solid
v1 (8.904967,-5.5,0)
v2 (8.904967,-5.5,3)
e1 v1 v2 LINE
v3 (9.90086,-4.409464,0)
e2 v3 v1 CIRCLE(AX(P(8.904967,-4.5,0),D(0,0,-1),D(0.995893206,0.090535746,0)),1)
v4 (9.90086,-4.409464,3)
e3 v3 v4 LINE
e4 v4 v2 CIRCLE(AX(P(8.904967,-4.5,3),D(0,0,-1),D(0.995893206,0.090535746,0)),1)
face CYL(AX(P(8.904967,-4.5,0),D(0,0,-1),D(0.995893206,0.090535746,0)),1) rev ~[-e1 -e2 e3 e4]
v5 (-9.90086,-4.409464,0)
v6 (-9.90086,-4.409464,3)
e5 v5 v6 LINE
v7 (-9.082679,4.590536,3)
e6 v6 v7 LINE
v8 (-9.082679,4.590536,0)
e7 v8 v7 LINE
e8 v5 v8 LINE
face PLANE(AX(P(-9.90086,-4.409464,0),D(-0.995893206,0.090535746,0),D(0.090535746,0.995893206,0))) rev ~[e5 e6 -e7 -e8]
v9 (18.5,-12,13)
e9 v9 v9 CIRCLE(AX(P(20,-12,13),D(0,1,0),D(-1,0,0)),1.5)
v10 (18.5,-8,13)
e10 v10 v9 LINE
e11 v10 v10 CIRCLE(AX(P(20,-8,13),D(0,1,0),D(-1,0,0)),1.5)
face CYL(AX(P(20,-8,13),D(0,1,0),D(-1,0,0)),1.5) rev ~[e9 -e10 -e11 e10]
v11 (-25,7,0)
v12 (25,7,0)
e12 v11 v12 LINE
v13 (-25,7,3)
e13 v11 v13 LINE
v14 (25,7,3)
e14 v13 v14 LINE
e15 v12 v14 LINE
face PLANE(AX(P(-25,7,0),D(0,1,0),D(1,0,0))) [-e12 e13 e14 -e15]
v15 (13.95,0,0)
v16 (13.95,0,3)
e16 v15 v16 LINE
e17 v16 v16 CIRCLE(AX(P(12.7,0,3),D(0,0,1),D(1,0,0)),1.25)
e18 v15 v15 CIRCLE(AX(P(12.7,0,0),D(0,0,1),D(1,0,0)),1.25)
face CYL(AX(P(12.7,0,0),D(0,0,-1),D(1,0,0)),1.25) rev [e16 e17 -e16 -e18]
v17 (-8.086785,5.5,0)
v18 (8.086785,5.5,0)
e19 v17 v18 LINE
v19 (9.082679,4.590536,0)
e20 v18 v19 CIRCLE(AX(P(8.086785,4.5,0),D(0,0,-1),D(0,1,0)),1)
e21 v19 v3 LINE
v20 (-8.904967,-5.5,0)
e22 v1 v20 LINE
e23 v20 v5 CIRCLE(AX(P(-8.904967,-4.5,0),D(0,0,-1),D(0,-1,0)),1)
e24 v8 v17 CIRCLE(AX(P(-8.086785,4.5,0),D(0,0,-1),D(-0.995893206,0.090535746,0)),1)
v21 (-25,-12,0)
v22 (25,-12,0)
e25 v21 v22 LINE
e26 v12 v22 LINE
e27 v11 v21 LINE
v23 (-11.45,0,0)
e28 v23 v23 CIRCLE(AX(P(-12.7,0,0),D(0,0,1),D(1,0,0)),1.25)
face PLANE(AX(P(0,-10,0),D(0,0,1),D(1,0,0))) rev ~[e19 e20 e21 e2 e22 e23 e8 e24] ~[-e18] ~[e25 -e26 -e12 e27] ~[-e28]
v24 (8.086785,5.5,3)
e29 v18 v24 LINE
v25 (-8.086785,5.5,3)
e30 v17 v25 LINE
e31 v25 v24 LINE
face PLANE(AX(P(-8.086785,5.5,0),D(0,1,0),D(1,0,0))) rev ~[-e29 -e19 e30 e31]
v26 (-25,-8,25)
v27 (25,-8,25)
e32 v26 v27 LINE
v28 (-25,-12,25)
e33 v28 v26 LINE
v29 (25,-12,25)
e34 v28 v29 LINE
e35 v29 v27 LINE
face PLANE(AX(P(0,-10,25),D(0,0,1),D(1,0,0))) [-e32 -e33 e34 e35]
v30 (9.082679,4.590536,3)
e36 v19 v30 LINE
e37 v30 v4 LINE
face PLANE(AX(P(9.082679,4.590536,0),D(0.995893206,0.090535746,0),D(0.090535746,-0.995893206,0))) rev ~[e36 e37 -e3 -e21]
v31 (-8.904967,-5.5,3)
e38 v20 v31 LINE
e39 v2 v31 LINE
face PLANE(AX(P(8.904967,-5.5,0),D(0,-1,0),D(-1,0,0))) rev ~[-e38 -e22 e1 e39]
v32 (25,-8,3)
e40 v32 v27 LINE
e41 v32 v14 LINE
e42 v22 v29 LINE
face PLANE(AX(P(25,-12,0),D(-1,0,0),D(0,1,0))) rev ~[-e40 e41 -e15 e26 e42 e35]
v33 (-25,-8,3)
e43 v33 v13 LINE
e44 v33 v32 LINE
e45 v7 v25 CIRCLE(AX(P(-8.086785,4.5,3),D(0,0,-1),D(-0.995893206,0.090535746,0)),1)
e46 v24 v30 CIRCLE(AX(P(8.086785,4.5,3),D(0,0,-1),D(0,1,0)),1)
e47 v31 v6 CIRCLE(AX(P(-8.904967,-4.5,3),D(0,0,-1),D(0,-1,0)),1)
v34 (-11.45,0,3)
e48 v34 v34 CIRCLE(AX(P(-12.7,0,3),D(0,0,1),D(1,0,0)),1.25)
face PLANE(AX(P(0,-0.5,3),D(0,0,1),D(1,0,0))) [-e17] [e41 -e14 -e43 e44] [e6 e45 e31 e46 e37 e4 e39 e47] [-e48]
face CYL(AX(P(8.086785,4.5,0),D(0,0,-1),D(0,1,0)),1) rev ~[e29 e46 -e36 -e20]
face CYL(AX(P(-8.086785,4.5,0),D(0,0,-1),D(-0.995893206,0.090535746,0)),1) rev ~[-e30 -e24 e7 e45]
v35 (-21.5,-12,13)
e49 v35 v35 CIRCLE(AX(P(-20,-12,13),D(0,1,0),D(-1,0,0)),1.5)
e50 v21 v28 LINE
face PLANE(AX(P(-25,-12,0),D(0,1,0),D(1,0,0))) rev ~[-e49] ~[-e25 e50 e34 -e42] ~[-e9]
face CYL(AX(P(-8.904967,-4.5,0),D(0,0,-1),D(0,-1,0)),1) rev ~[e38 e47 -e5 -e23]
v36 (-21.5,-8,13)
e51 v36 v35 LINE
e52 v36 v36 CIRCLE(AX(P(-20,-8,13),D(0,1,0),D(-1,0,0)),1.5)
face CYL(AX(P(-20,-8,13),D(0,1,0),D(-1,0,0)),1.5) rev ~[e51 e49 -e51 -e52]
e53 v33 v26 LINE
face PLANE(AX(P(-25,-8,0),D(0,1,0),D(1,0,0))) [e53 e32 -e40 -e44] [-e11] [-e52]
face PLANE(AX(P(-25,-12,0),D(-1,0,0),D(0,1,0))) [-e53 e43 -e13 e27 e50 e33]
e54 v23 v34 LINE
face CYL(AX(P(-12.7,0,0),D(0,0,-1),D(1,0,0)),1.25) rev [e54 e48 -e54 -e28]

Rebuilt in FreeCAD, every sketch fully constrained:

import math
import FreeCAD as App
import Part
import Sketcher

doc = App.newDocument("Part")
params = doc.addObject("Spreadsheet::Sheet", "Params")
for row, (alias, value) in enumerate([
    ("sketch1_radius", "1 mm"),
    ("sketch1_diameter", "2.5 mm"),
    ("sketch1_width", "50 mm"),
    ("sketch1_height", "15 mm"),
    ("pad1_length", "3 mm"),
    ("sketch2_width", "50 mm"),
    ("sketch2_height", "4 mm"),
    ("pad2_length", "25 mm"),
    ("sketch3_diameter", "3 mm"),
], start=1):
    params.set(f"A{row}", alias)
    params.set(f"B{row}", "=" + value)
    params.setAlias(f"B{row}", alias)

body = doc.addObject("PartDesign::Body", "Body")

# Sketch on XY plane
sketch1 = body.newObject("Sketcher::SketchObject", "Sketch")
sketch1.AttachmentSupport = (doc.getObject("XY_Plane"), [""])
sketch1.MapMode = "FlatFace"
sketch1.addGeometry(Part.LineSegment(App.Vector(-25, 7, 0), App.Vector(-25, -8, 0)), False)
sketch1.addGeometry(Part.LineSegment(App.Vector(-25, -8, 0), App.Vector(25, -8, 0)), False)
sketch1.addGeometry(Part.LineSegment(App.Vector(25, -8, 0), App.Vector(25, 7, 0)), False)
sketch1.addGeometry(Part.LineSegment(App.Vector(25, 7, 0), App.Vector(-25, 7, 0)), False)
sketch1.addGeometry(Part.Circle(App.Vector(-12.7, 0, 0), App.Vector(0, 0, 1), 1.2), False)
sketch1.addGeometry(Part.LineSegment(App.Vector(-9.9, -4.4, 0), App.Vector(-9.1, 4.6, 0)), False)
sketch1.addGeometry(Part.ArcOfCircle(Part.Circle(App.Vector(-8.1, 4.5, 0), App.Vector(0, 0, 1), 1), math.radians(90), math.radians(175)), False)
sketch1.addGeometry(Part.LineSegment(App.Vector(-8.1, 5.5, 0), App.Vector(8.1, 5.5, 0)), False)
sketch1.addGeometry(Part.ArcOfCircle(Part.Circle(App.Vector(8.1, 4.5, 0), App.Vector(0, 0, 1), 1), math.radians(5), math.radians(90)), False)
sketch1.addGeometry(Part.LineSegment(App.Vector(9.1, 4.6, 0), App.Vector(9.9, -4.4, 0)), False)
sketch1.addGeometry(Part.ArcOfCircle(Part.Circle(App.Vector(8.9, -4.5, 0), App.Vector(0, 0, 1), 1), math.radians(-90), math.radians(5)), False)
sketch1.addGeometry(Part.LineSegment(App.Vector(8.9, -5.5, 0), App.Vector(-8.9, -5.5, 0)), False)
sketch1.addGeometry(Part.ArcOfCircle(Part.Circle(App.Vector(-8.9, -4.5, 0), App.Vector(0, 0, 1), 1), math.radians(175), math.radians(270)), False)
sketch1.addGeometry(Part.Circle(App.Vector(12.7, 0, 0), App.Vector(0, 0, 1), 1.2), False)
sketch1.addConstraint(Sketcher.Constraint("Coincident", 0, 2, 1, 1))
sketch1.addConstraint(Sketcher.Constraint("Coincident", 1, 2, 2, 1))
sketch1.addConstraint(Sketcher.Constraint("Coincident", 2, 2, 3, 1))
sketch1.addConstraint(Sketcher.Constraint("Coincident", 3, 2, 0, 1))
sketch1.addConstraint(Sketcher.Constraint("Tangent", 5, 2, 6, 2))
sketch1.addConstraint(Sketcher.Constraint("Tangent", 6, 1, 7, 1))
sketch1.addConstraint(Sketcher.Constraint("Tangent", 7, 2, 8, 2))
sketch1.addConstraint(Sketcher.Constraint("Tangent", 8, 1, 9, 1))
sketch1.addConstraint(Sketcher.Constraint("Tangent", 9, 2, 10, 2))
sketch1.addConstraint(Sketcher.Constraint("Tangent", 10, 1, 11, 1))
sketch1.addConstraint(Sketcher.Constraint("Tangent", 11, 2, 12, 2))
sketch1.addConstraint(Sketcher.Constraint("Tangent", 12, 1, 5, 1))
sketch1.addConstraint(Sketcher.Constraint("Vertical", 0))
sketch1.addConstraint(Sketcher.Constraint("Horizontal", 1))
sketch1.addConstraint(Sketcher.Constraint("Vertical", 2))
sketch1.addConstraint(Sketcher.Constraint("Horizontal", 3))
sketch1.addConstraint(Sketcher.Constraint("Horizontal", 7))
sketch1.addConstraint(Sketcher.Constraint("Horizontal", 11))
sketch1.addConstraint(Sketcher.Constraint("Equal", 6, 8))
sketch1.addConstraint(Sketcher.Constraint("Equal", 8, 10))
sketch1.addConstraint(Sketcher.Constraint("Equal", 10, 12))
sketch1.addConstraint(Sketcher.Constraint("Equal", 4, 13))
sketch1.addConstraint(Sketcher.Constraint("Symmetric", 4, 3, 13, 3, -1, 1))
sketch1.addConstraint(Sketcher.Constraint("Symmetric", 5, 2, 8, 1, -2))
sketch1.addConstraint(Sketcher.Constraint("PointOnObject", 4, 3, -1))
sketch1.addConstraint(Sketcher.Constraint("Radius", 6, 1.0))
sketch1.addConstraint(Sketcher.Constraint("Diameter", 4, 2.5))
sketch1.addConstraint(Sketcher.Constraint("DistanceX", 1, 1, 1, 2, 50.0))
sketch1.addConstraint(Sketcher.Constraint("DistanceY", 0, 2, 0, 1, 15.0))
sketch1.addConstraint(Sketcher.Constraint("DistanceX", 0, 2, -1, 1, 25.0))
sketch1.addConstraint(Sketcher.Constraint("DistanceY", 0, 2, -1, 1, 8.0))
sketch1.addConstraint(Sketcher.Constraint("DistanceY", 10, 3, 8, 3, 9.0))
sketch1.addConstraint(Sketcher.Constraint("DistanceX", 4, 3, -1, 1, 12.7))
sketch1.addConstraint(Sketcher.Constraint("DistanceY", -1, 1, 6, 3, 4.5))
sketch1.addConstraint(Sketcher.Constraint("DistanceX", 7, 1, 7, 2, 16.173571))
sketch1.addConstraint(Sketcher.Constraint("DistanceX", 11, 2, 11, 1, 17.809934))
sketch1.setExpression("Constraints[25]", "Params.sketch1_radius")
sketch1.setExpression("Constraints[26]", "Params.sketch1_diameter")
sketch1.setExpression("Constraints[27]", "Params.sketch1_width")
sketch1.setExpression("Constraints[28]", "Params.sketch1_height")
pad1 = body.newObject("PartDesign::Pad", "Pad")
pad1.Profile = sketch1
pad1.setExpression("Length", "Params.pad1_length")

# Sketch on XY plane
sketch2 = body.newObject("Sketcher::SketchObject", "Sketch001")
sketch2.AttachmentSupport = (doc.getObject("XY_Plane"), [""])
sketch2.MapMode = "FlatFace"
sketch2.addGeometry(Part.LineSegment(App.Vector(-25, -8, 0), App.Vector(-25, -12, 0)), False)
sketch2.addGeometry(Part.LineSegment(App.Vector(-25, -12, 0), App.Vector(25, -12, 0)), False)
sketch2.addGeometry(Part.LineSegment(App.Vector(25, -12, 0), App.Vector(25, -8, 0)), False)
sketch2.addGeometry(Part.LineSegment(App.Vector(25, -8, 0), App.Vector(-25, -8, 0)), False)
sketch2.addConstraint(Sketcher.Constraint("Coincident", 0, 2, 1, 1))
sketch2.addConstraint(Sketcher.Constraint("Coincident", 1, 2, 2, 1))
sketch2.addConstraint(Sketcher.Constraint("Coincident", 2, 2, 3, 1))
sketch2.addConstraint(Sketcher.Constraint("Coincident", 3, 2, 0, 1))
sketch2.addConstraint(Sketcher.Constraint("Vertical", 0))
sketch2.addConstraint(Sketcher.Constraint("Horizontal", 1))
sketch2.addConstraint(Sketcher.Constraint("Vertical", 2))
sketch2.addConstraint(Sketcher.Constraint("Horizontal", 3))
sketch2.addConstraint(Sketcher.Constraint("DistanceX", 1, 1, 1, 2, 50.0))
sketch2.addConstraint(Sketcher.Constraint("DistanceY", 0, 2, 0, 1, 4.0))
sketch2.addConstraint(Sketcher.Constraint("DistanceX", 0, 2, -1, 1, 25.0))
sketch2.addConstraint(Sketcher.Constraint("DistanceY", 0, 2, -1, 1, 12.0))
sketch2.setExpression("Constraints[8]", "Params.sketch2_width")
sketch2.setExpression("Constraints[9]", "Params.sketch2_height")
pad2 = body.newObject("PartDesign::Pad", "Pad001")
pad2.Profile = sketch2
pad2.setExpression("Length", "Params.pad2_length")

# Sketch on XZ plane
sketch3 = body.newObject("Sketcher::SketchObject", "Sketch002")
sketch3.AttachmentSupport = (doc.getObject("XZ_Plane"), [""])
sketch3.MapMode = "FlatFace"
sketch3.AttachmentOffset = App.Placement(App.Vector(0, 0, 8), App.Rotation())
sketch3.addGeometry(Part.Circle(App.Vector(20, 13, 0), App.Vector(0, 0, 1), 1.5), False)
sketch3.addGeometry(Part.Circle(App.Vector(-20, 13, 0), App.Vector(0, 0, 1), 1.5), False)
sketch3.addConstraint(Sketcher.Constraint("Equal", 0, 1))
sketch3.addConstraint(Sketcher.Constraint("Symmetric", 0, 3, 1, 3, -2))
sketch3.addConstraint(Sketcher.Constraint("Diameter", 0, 3.0))
sketch3.addConstraint(Sketcher.Constraint("DistanceX", -1, 1, 0, 3, 20.0))
sketch3.addConstraint(Sketcher.Constraint("DistanceY", -1, 1, 0, 3, 13.0))
sketch3.setExpression("Constraints[2]", "Params.sketch3_diameter")
pocket1 = body.newObject("PartDesign::Pocket", "Pocket")
pocket1.Profile = sketch3
pocket1.Type = "ThroughAll"
pocket1.Reversed = True

doc.recompute()
